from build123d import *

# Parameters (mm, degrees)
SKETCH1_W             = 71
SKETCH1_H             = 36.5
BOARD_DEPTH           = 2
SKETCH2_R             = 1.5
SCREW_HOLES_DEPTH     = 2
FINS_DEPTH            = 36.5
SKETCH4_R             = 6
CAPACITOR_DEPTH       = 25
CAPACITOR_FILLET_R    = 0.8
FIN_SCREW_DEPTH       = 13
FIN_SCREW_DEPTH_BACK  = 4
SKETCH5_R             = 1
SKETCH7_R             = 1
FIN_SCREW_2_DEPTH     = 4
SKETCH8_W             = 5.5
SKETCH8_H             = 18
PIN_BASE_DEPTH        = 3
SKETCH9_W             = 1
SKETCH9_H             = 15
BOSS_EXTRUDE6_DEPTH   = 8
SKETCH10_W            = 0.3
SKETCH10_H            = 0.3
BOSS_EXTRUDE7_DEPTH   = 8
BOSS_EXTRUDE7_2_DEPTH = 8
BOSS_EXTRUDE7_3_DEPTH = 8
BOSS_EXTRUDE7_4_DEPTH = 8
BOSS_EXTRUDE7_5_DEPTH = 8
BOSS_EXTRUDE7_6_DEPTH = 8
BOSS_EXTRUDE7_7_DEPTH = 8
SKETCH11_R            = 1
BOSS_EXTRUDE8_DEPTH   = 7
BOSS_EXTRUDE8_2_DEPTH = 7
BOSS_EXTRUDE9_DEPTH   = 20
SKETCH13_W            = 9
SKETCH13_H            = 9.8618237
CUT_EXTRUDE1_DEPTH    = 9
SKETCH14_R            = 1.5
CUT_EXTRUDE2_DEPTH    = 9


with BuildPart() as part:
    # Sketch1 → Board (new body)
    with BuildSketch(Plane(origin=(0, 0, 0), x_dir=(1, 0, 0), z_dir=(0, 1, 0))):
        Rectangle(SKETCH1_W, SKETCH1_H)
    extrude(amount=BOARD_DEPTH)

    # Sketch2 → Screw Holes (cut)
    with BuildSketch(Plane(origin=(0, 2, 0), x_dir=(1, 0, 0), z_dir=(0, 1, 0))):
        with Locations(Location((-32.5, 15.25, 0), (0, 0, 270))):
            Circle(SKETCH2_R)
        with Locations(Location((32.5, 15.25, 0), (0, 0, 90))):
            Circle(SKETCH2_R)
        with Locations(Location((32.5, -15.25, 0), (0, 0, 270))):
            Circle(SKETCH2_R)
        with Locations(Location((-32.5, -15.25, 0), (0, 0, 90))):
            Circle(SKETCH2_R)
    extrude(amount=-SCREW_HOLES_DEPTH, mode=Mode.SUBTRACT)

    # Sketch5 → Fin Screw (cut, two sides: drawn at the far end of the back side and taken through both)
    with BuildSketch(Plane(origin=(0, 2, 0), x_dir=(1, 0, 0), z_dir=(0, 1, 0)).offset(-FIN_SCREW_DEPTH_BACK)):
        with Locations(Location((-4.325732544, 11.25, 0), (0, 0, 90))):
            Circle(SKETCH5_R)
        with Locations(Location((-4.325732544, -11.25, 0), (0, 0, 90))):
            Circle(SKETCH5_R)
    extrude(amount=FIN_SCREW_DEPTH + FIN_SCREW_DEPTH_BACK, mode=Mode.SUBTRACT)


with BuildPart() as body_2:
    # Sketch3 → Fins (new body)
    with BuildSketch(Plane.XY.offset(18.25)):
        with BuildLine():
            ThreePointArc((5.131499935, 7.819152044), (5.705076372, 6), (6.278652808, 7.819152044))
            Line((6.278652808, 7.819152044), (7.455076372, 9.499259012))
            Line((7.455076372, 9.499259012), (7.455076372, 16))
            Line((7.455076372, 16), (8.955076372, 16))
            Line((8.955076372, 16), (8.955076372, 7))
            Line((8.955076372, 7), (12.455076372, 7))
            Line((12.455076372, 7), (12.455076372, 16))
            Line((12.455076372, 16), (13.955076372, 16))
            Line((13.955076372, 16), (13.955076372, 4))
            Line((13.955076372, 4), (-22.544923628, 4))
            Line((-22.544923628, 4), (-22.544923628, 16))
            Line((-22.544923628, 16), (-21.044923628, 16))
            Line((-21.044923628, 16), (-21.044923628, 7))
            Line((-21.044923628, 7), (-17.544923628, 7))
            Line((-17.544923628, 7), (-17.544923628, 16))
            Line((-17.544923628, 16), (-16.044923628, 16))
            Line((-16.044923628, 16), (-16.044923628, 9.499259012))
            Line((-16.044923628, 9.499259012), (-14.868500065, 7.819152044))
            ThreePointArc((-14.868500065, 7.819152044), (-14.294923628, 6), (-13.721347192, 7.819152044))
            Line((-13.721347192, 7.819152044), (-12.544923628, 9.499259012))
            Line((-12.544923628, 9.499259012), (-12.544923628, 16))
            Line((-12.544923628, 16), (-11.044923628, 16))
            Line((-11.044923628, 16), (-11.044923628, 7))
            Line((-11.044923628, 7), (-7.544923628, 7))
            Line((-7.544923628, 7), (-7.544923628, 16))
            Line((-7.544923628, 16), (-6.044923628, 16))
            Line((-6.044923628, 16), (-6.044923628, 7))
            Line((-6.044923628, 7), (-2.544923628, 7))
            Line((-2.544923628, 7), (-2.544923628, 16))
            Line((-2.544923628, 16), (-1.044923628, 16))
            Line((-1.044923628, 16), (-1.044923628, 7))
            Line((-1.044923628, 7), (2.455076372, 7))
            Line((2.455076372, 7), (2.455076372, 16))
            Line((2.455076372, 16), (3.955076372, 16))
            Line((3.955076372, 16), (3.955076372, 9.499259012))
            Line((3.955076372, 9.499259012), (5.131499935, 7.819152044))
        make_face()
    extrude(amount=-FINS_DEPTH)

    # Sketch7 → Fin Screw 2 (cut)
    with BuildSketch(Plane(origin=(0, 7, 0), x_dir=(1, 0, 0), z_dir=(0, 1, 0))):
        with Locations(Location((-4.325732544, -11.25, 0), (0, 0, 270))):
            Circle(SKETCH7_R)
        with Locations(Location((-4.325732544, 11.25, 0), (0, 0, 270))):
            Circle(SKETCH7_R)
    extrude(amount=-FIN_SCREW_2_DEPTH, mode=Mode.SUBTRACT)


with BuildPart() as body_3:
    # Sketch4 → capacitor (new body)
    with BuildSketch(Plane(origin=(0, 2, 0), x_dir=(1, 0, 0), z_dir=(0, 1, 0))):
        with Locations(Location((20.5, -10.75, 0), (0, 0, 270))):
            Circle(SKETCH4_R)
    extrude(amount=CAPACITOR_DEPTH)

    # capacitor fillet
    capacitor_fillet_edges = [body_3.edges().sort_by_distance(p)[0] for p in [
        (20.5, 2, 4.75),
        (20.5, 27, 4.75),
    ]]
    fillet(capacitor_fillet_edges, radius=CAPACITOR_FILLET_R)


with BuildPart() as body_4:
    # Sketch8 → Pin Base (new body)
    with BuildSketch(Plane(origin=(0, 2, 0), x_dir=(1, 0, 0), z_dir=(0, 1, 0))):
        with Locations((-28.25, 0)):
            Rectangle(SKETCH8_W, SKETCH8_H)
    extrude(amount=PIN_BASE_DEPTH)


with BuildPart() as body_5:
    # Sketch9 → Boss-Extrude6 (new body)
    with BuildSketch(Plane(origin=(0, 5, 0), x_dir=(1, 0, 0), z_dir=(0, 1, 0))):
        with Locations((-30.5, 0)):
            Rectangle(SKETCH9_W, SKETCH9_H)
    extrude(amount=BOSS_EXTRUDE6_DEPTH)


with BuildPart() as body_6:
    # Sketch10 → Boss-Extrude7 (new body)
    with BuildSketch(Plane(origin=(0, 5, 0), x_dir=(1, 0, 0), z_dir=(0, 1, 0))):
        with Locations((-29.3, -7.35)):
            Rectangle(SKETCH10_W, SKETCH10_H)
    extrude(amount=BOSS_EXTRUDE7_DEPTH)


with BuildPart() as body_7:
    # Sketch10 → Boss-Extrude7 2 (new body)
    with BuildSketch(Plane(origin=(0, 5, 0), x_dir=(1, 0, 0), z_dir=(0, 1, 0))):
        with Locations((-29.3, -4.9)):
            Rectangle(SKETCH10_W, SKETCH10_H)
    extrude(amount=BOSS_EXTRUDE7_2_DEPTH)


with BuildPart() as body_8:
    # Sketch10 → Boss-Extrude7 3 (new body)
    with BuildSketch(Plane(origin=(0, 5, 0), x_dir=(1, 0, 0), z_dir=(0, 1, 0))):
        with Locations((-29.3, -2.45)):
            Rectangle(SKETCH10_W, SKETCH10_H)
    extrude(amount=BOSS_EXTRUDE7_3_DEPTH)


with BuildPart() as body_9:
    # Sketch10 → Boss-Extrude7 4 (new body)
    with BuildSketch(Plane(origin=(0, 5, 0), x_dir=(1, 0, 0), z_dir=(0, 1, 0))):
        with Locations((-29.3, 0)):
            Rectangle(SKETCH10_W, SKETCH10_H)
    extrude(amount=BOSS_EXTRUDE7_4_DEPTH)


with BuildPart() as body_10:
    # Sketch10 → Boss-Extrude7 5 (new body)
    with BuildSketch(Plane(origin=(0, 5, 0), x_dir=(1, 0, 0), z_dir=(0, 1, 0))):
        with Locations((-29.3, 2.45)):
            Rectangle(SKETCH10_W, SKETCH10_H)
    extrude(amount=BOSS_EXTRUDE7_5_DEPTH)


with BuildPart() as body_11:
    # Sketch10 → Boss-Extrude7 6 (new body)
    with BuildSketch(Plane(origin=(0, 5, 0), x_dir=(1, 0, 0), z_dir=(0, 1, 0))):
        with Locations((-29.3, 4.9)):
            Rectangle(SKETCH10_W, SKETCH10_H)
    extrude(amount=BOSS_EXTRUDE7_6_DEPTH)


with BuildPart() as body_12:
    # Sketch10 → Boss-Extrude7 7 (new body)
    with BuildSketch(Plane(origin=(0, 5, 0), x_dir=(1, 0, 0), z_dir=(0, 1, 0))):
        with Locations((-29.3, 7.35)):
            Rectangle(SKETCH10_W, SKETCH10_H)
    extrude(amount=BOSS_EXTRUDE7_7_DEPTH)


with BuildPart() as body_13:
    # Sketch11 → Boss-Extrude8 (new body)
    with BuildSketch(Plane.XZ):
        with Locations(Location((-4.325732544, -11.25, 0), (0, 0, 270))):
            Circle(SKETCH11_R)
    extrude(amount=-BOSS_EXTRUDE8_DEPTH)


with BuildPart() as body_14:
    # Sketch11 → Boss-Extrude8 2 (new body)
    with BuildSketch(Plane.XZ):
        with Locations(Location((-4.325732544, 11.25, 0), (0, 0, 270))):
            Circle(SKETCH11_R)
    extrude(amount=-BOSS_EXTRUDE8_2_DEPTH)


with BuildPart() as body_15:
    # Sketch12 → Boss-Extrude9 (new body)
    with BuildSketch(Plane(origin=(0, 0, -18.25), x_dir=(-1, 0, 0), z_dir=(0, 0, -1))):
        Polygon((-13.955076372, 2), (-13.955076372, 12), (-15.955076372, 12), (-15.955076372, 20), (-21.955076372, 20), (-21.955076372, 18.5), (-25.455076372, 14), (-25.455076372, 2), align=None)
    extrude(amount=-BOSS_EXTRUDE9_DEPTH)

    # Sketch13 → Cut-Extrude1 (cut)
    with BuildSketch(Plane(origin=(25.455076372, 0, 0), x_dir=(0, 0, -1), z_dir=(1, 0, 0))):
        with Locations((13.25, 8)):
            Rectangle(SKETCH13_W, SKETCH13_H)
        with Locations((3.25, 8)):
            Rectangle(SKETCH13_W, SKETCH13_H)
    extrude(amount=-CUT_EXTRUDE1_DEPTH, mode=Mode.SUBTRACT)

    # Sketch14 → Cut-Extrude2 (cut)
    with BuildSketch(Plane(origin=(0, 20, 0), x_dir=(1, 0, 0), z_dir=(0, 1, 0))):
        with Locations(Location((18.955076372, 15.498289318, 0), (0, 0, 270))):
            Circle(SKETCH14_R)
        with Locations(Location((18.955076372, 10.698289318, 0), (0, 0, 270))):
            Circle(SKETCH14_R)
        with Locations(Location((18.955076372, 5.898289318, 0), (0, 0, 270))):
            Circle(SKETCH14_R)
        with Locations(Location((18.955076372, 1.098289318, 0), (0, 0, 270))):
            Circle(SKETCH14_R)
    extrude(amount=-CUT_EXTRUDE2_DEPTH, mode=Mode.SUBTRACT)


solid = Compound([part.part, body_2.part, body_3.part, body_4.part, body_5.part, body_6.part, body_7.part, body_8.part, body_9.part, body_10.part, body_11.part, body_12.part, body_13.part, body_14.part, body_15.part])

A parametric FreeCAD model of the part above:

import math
import FreeCAD as App
import Part
import Sketcher
from FreeCAD import Vector
Q = App.Units.Quantity


def edges_at(feature, points):
    """Names of the edges that pass closest to the given points."""
    edges = feature.Shape.Edges
    near = lambda p: min(range(len(edges)), key=lambda i: edges[i].distToShape(Part.Vertex(*p))[0])
    return sorted({f"Edge{near(p) + 1}" for p in points})


def add_polygon(sketch, points):
    """Adds a closed chain of lines whose ends are joined by coincident constraints."""
    first, n = sketch.GeometryCount, len(points)
    for a, b in zip(points, points[1:] + points[:1]):
        sketch.addGeometry(Part.LineSegment(App.Vector(*a, 0), App.Vector(*b, 0)), False)
    for i in range(n):
        sketch.addConstraint(Sketcher.Constraint("Coincident", first + i, 2, first + (i + 1) % n, 1))

doc = App.newDocument("Part")
body = doc.addObject("PartDesign::Body", "Body")

# Sketch on XZ plane
sketch1 = body.newObject("Sketcher::SketchObject", "Sketch")
sketch1.AttachmentSupport = (doc.getObject("XZ_Plane"), [""])
sketch1.MapMode = "FlatFace"
add_polygon(sketch1, [(-36, -18), (-36, 18), (36, 18), (36, -18)])  # lines 0-3
sketch1.addConstraint(Sketcher.Constraint("Vertical", 0))
sketch1.addConstraint(Sketcher.Constraint("Horizontal", 1))
sketch1.addConstraint(Sketcher.Constraint("Vertical", 2))
sketch1.addConstraint(Sketcher.Constraint("Horizontal", 3))
sketch1.addConstraint(Sketcher.Constraint("Symmetric", 0, 2, 2, 2, -1, 1))
sketch1.addConstraint(Sketcher.Constraint("DistanceX", 1, 1, 1, 2, 71.0))
sketch1.addConstraint(Sketcher.Constraint("DistanceY", 0, 1, 0, 2, 36.5))
pad1 = body.newObject("PartDesign::Pad", "Pad")
pad1.Profile = sketch1
pad1.Length = 2
pad1.Reversed = True

# Sketch on XZ plane
sketch2 = body.newObject("Sketcher::SketchObject", "Sketch001")
sketch2.AttachmentSupport = (doc.getObject("XZ_Plane"), [""])
sketch2.MapMode = "FlatFace"
sketch2.AttachmentOffset = App.Placement(Vector(0, 0, -2), App.Rotation())
sketch2.addGeometry(Part.Circle(Vector(-32.5, -15.2, 0), Vector(0, 0, 1), 1.5), False)
sketch2.addGeometry(Part.Circle(Vector(32.5, -15.2, 0), Vector(0, 0, 1), 1.5), False)
sketch2.addGeometry(Part.Circle(Vector(32.5, 15.2, 0), Vector(0, 0, 1), 1.5), False)
sketch2.addGeometry(Part.Circle(Vector(-32.5, 15.2, 0), Vector(0, 0, 1), 1.5), False)
sketch2.addConstraint(Sketcher.Constraint("Equal", 0, 1))
sketch2.addConstraint(Sketcher.Constraint("Equal", 1, 2))
sketch2.addConstraint(Sketcher.Constraint("Equal", 2, 3))
sketch2.addConstraint(Sketcher.Constraint("Symmetric", 0, 3, 2, 3, -1, 1))
sketch2.addConstraint(Sketcher.Constraint("Symmetric", 1, 3, 3, 3, -1, 1))
sketch2.addConstraint(Sketcher.Constraint("Symmetric", 0, 3, 1, 3, -2))
sketch2.addConstraint(Sketcher.Constraint("Diameter", 0, 3.0))
sketch2.addConstraint(Sketcher.Constraint("DistanceX", 0, 3, 1, 3, 65.0))
sketch2.addConstraint(Sketcher.Constraint("DistanceY", 1, 3, 2, 3, 30.5))
pocket1 = body.newObject("PartDesign::Pocket", "Pocket")
pocket1.Profile = sketch2
pocket1.Length = 2
pocket1.Reversed = True

# Sketch on XZ plane
sketch3 = body.newObject("Sketcher::SketchObject", "Sketch002")
sketch3.AttachmentSupport = (doc.getObject("XZ_Plane"), [""])
sketch3.MapMode = "FlatFace"
sketch3.AttachmentOffset = App.Placement(Vector(0, 0, -2), App.Rotation())
sketch3.addGeometry(Part.Circle(Vector(-4.3, -11.2, 0), Vector(0, 0, 1), 1), False)
sketch3.addGeometry(Part.Circle(Vector(-4.3, 11.2, 0), Vector(0, 0, 1), 1), False)
sketch3.addConstraint(Sketcher.Constraint("Equal", 0, 1))
sketch3.addConstraint(Sketcher.Constraint("Symmetric", 0, 3, 1, 3, -1))
sketch3.addConstraint(Sketcher.Constraint("Diameter", 0, 2.0))
sketch3.addConstraint(Sketcher.Constraint("DistanceY", 0, 3, 1, 3, 22.5))
sketch3.addConstraint(Sketcher.Constraint("DistanceX", 0, 3, -1, 1, 4.325733))
pocket2 = body.newObject("PartDesign::Pocket", "Pocket001")
pocket2.Profile = sketch3
pocket2.Type = "ThroughAll"
pocket2.Midplane = True
body2 = doc.addObject("PartDesign::Body", "Body001")

# Sketch on XY plane
sketch4 = body2.newObject("Sketcher::SketchObject", "Sketch003")
sketch4.AttachmentSupport = (doc.getObject("XY_Plane001"), [""])
sketch4.MapMode = "FlatFace"
sketch4.AttachmentOffset = App.Placement(Vector(0, 0, 18.25), App.Rotation())
sketch4.addGeometry(Part.ArcOfCircle(Part.Circle(Vector(5.7, 7, 0), Vector(0, 0, 1), 1), math.radians(125), math.radians(415)), False)
sketch4.addGeometry(Part.LineSegment(Vector(5.1, 7.8, 0), Vector(4, 9.5, 0)), False)
sketch4.addGeometry(Part.LineSegment(Vector(4, 9.5, 0), Vector(4, 16, 0)), False)
sketch4.addGeometry(Part.LineSegment(Vector(4, 16, 0), Vector(2.5, 16, 0)), False)
sketch4.addGeometry(Part.LineSegment(Vector(2.5, 16, 0), Vector(2.5, 7, 0)), False)
sketch4.addGeometry(Part.LineSegment(Vector(2.5, 7, 0), Vector(-1, 7, 0)), False)
sketch4.addGeometry(Part.LineSegment(Vector(-1, 7, 0), Vector(-1, 16, 0)), False)
sketch4.addGeometry(Part.LineSegment(Vector(-1, 16, 0), Vector(-2.5, 16, 0)), False)
sketch4.addGeometry(Part.LineSegment(Vector(-2.5, 16, 0), Vector(-2.5, 7, 0)), False)
sketch4.addGeometry(Part.LineSegment(Vector(-2.5, 7, 0), Vector(-6, 7, 0)), False)
sketch4.addGeometry(Part.LineSegment(Vector(-6, 7, 0), Vector(-6, 16, 0)), False)
sketch4.addGeometry(Part.LineSegment(Vector(-6, 16, 0), Vector(-7.5, 16, 0)), False)
sketch4.addGeometry(Part.LineSegment(Vector(-7.5, 16, 0), Vector(-7.5, 7, 0)), False)
sketch4.addGeometry(Part.LineSegment(Vector(-7.5, 7, 0), Vector(-11, 7, 0)), False)
sketch4.addGeometry(Part.LineSegment(Vector(-11, 7, 0), Vector(-11, 16, 0)), False)
sketch4.addGeometry(Part.LineSegment(Vector(-11, 16, 0), Vector(-12.5, 16, 0)), False)
sketch4.addGeometry(Part.LineSegment(Vector(-12.5, 16, 0), Vector(-12.5, 9.5, 0)), False)
sketch4.addGeometry(Part.LineSegment(Vector(-12.5, 9.5, 0), Vector(-13.7, 7.8, 0)), False)
sketch4.addGeometry(Part.ArcOfCircle(Part.Circle(Vector(-14.3, 7, 0), Vector(0, 0, 1), 1), math.radians(125), math.radians(415)), False)
sketch4.addGeometry(Part.LineSegment(Vector(-14.9, 7.8, 0), Vector(-16, 9.5, 0)), False)
sketch4.addGeometry(Part.LineSegment(Vector(-16, 9.5, 0), Vector(-16, 16, 0)), False)
sketch4.addGeometry(Part.LineSegment(Vector(-16, 16, 0), Vector(-17.5, 16, 0)), False)
sketch4.addGeometry(Part.LineSegment(Vector(-17.5, 16, 0), Vector(-17.5, 7, 0)), False)
sketch4.addGeometry(Part.LineSegment(Vector(-17.5, 7, 0), Vector(-21, 7, 0)), False)
sketch4.addGeometry(Part.LineSegment(Vector(-21, 7, 0), Vector(-21, 16, 0)), False)
sketch4.addGeometry(Part.LineSegment(Vector(-21, 16, 0), Vector(-22.5, 16, 0)), False)
sketch4.addGeometry(Part.LineSegment(Vector(-22.5, 16, 0), Vector(-22.5, 4, 0)), False)
sketch4.addGeometry(Part.LineSegment(Vector(-22.5, 4, 0), Vector(14, 4, 0)), False)
sketch4.addGeometry(Part.LineSegment(Vector(14, 4, 0), Vector(14, 16, 0)), False)
sketch4.addGeometry(Part.LineSegment(Vector(14, 16, 0), Vector(12.5, 16, 0)), False)
sketch4.addGeometry(Part.LineSegment(Vector(12.5, 16, 0), Vector(12.5, 7, 0)), False)
sketch4.addGeometry(Part.LineSegment(Vector(12.5, 7, 0), Vector(9, 7, 0)), False)
sketch4.addGeometry(Part.LineSegment(Vector(9, 7, 0), Vector(9, 16, 0)), False)
sketch4.addGeometry(Part.LineSegment(Vector(9, 16, 0), Vector(7.5, 16, 0)), False)
sketch4.addGeometry(Part.LineSegment(Vector(7.5, 16, 0), Vector(7.5, 9.5, 0)), False)
sketch4.addGeometry(Part.LineSegment(Vector(7.5, 9.5, 0), Vector(6.3, 7.8, 0)), False)
sketch4.addConstraint(Sketcher.Constraint("Coincident", 0, 1, 1, 1))
sketch4.addConstraint(Sketcher.Constraint("Coincident", 1, 2, 2, 1))
sketch4.addConstraint(Sketcher.Constraint("Coincident", 2, 2, 3, 1))
sketch4.addConstraint(Sketcher.Constraint("Coincident", 3, 2, 4, 1))
sketch4.addConstraint(Sketcher.Constraint("Coincident", 4, 2, 5, 1))
sketch4.addConstraint(Sketcher.Constraint("Coincident", 5, 2, 6, 1))
sketch4.addConstraint(Sketcher.Constraint("Coincident", 6, 2, 7, 1))
sketch4.addConstraint(Sketcher.Constraint("Coincident", 7, 2, 8, 1))
sketch4.addConstraint(Sketcher.Constraint("Coincident", 8, 2, 9, 1))
sketch4.addConstraint(Sketcher.Constraint("Coincident", 9, 2, 10, 1))
sketch4.addConstraint(Sketcher.Constraint("Coincident", 10, 2, 11, 1))
sketch4.addConstraint(Sketcher.Constraint("Coincident", 11, 2, 12, 1))
sketch4.addConstraint(Sketcher.Constraint("Coincident", 12, 2, 13, 1))
sketch4.addConstraint(Sketcher.Constraint("Coincident", 13, 2, 14, 1))
sketch4.addConstraint(Sketcher.Constraint("Coincident", 14, 2, 15, 1))
sketch4.addConstraint(Sketcher.Constraint("Coincident", 15, 2, 16, 1))
sketch4.addConstraint(Sketcher.Constraint("Coincident", 16, 2, 17, 1))
sketch4.addConstraint(Sketcher.Constraint("Coincident", 17, 2, 18, 2))
sketch4.addConstraint(Sketcher.Constraint("Coincident", 18, 1, 19, 1))
sketch4.addConstraint(Sketcher.Constraint("Coincident", 19, 2, 20, 1))
sketch4.addConstraint(Sketcher.Constraint("Coincident", 20, 2, 21, 1))
sketch4.addConstraint(Sketcher.Constraint("Coincident", 21, 2, 22, 1))
sketch4.addConstraint(Sketcher.Constraint("Coincident", 22, 2, 23, 1))
sketch4.addConstraint(Sketcher.Constraint("Coincident", 23, 2, 24, 1))
sketch4.addConstraint(Sketcher.Constraint("Coincident", 24, 2, 25, 1))
sketch4.addConstraint(Sketcher.Constraint("Coincident", 25, 2, 26, 1))
sketch4.addConstraint(Sketcher.Constraint("Coincident", 26, 2, 27, 1))
sketch4.addConstraint(Sketcher.Constraint("Coincident", 27, 2, 28, 1))
sketch4.addConstraint(Sketcher.Constraint("Coincident", 28, 2, 29, 1))
sketch4.addConstraint(Sketcher.Constraint("Coincident", 29, 2, 30, 1))
sketch4.addConstraint(Sketcher.Constraint("Coincident", 30, 2, 31, 1))
sketch4.addConstraint(Sketcher.Constraint("Coincident", 31, 2, 32, 1))
sketch4.addConstraint(Sketcher.Constraint("Coincident", 32, 2, 33, 1))
sketch4.addConstraint(Sketcher.Constraint("Coincident", 33, 2, 34, 1))
sketch4.addConstraint(Sketcher.Constraint("Coincident", 34, 2, 35, 1))
sketch4.addConstraint(Sketcher.Constraint("Coincident", 35, 2, 0, 2))
sketch4.addConstraint(Sketcher.Constraint("Vertical", 2))
sketch4.addConstraint(Sketcher.Constraint("Horizontal", 3))
sketch4.addConstraint(Sketcher.Constraint("Vertical", 4))
sketch4.addConstraint(Sketcher.Constraint("Horizontal", 5))
sketch4.addConstraint(Sketcher.Constraint("Vertical", 6))
sketch4.addConstraint(Sketcher.Constraint("Horizontal", 7))
sketch4.addConstraint(Sketcher.Constraint("Vertical", 8))
sketch4.addConstraint(Sketcher.Constraint("Horizontal", 9))
sketch4.addConstraint(Sketcher.Constraint("Vertical", 10))
sketch4.addConstraint(Sketcher.Constraint("Horizontal", 11))
sketch4.addConstraint(Sketcher.Constraint("Vertical", 12))
sketch4.addConstraint(Sketcher.Constraint("Horizontal", 13))
sketch4.addConstraint(Sketcher.Constraint("Vertical", 14))
sketch4.addConstraint(Sketcher.Constraint("Horizontal", 15))
sketch4.addConstraint(Sketcher.Constraint("Vertical", 16))
sketch4.addConstraint(Sketcher.Constraint("Vertical", 20))
sketch4.addConstraint(Sketcher.Constraint("Horizontal", 21))
sketch4.addConstraint(Sketcher.Constraint("Vertical", 22))
sketch4.addConstraint(Sketcher.Constraint("Horizontal", 23))
sketch4.addConstraint(Sketcher.Constraint("Vertical", 24))
sketch4.addConstraint(Sketcher.Constraint("Horizontal", 25))
sketch4.addConstraint(Sketcher.Constraint("Vertical", 26))
sketch4.addConstraint(Sketcher.Constraint("Horizontal", 27))
sketch4.addConstraint(Sketcher.Constraint("Vertical", 28))
sketch4.addConstraint(Sketcher.Constraint("Horizontal", 29))
sketch4.addConstraint(Sketcher.Constraint("Vertical", 30))
sketch4.addConstraint(Sketcher.Constraint("Horizontal", 31))
sketch4.addConstraint(Sketcher.Constraint("Vertical", 32))
sketch4.addConstraint(Sketcher.Constraint("Horizontal", 33))
sketch4.addConstraint(Sketcher.Constraint("Vertical", 34))
sketch4.addConstraint(Sketcher.Constraint("Equal", 0, 18))
sketch4.addConstraint(Sketcher.Constraint("Parallel", 1, 19))
sketch4.addConstraint(Sketcher.Constraint("Parallel", 17, 35))
sketch4.addConstraint(Sketcher.Constraint("Horizontal", 0, 3, 18, 3))
sketch4.addConstraint(Sketcher.Constraint("Horizontal", 18, 3, 4, 2))
sketch4.addConstraint(Sketcher.Constraint("Horizontal", 3, 2, 6, 2))
sketch4.addConstraint(Sketcher.Constraint("Horizontal", 5, 2, 8, 2))
sketch4.addConstraint(Sketcher.Constraint("Horizontal", 7, 2, 10, 2))
sketch4.addConstraint(Sketcher.Constraint("Horizontal", 9, 2, 12, 2))
sketch4.addConstraint(Sketcher.Constraint("Horizontal", 11, 2, 14, 2))
sketch4.addConstraint(Sketcher.Constraint("Horizontal", 1, 2, 16, 2))
sketch4.addConstraint(Sketcher.Constraint("Horizontal", 0, 1, 17, 2))
sketch4.addConstraint(Sketcher.Constraint("Horizontal", 17, 2, 18, 1))
sketch4.addConstraint(Sketcher.Constraint("Horizontal", 16, 2, 19, 2))
sketch4.addConstraint(Sketcher.Constraint("Horizontal", 15, 2, 20, 2))
sketch4.addConstraint(Sketcher.Constraint("Horizontal", 13, 2, 22, 2))
sketch4.addConstraint(Sketcher.Constraint("Horizontal", 21, 2, 24, 2))
sketch4.addConstraint(Sketcher.Constraint("Horizontal", 25, 2, 28, 2))
sketch4.addConstraint(Sketcher.Constraint("Horizontal", 23, 2, 30, 2))
sketch4.addConstraint(Sketcher.Constraint("Horizontal", 29, 2, 32, 2))
sketch4.addConstraint(Sketcher.Constraint("Horizontal", 19, 2, 34, 2))
sketch4.addConstraint(Sketcher.Constraint("Horizontal", 18, 1, 35, 2))
sketch4.addConstraint(Sketcher.Constraint("Equal", 3, 7))
sketch4.addConstraint(Sketcher.Constraint("Equal", 5, 9))
sketch4.addConstraint(Sketcher.Constraint("Equal", 7, 11))
sketch4.addConstraint(Sketcher.Constraint("Equal", 9, 13))
sketch4.addConstraint(Sketcher.Constraint("Equal", 11, 15))
sketch4.addConstraint(Sketcher.Constraint("Equal", 15, 21))
sketch4.addConstraint(Sketcher.Constraint("Equal", 13, 23))
sketch4.addConstraint(Sketcher.Constraint("Equal", 21, 25))
sketch4.addConstraint(Sketcher.Constraint("Equal", 25, 29))
sketch4.addConstraint(Sketcher.Constraint("Equal", 23, 31))
sketch4.addConstraint(Sketcher.Constraint("Equal", 29, 33))
sketch4.addConstraint(Sketcher.Constraint("Equal", 1, 17))
sketch4.addConstraint(Sketcher.Constraint("Radius", 0, 1.0))
sketch4.addConstraint(Sketcher.Constraint("DistanceY", 4, 2, 4, 1, 9.0))
sketch4.addConstraint(Sketcher.Constraint("DistanceY", 26, 2, 26, 1, 12.0))
sketch4.addConstraint(Sketcher.Constraint("Angle", 1, Q("125 deg")))
sketch4.addConstraint(Sketcher.Constraint("DistanceX", 3, 2, 3, 1, 1.5))
sketch4.addConstraint(Sketcher.Constraint("DistanceX", 5, 2, 5, 1, 3.5))
sketch4.addConstraint(Sketcher.Constraint("DistanceX", 27, 1, 27, 2, 36.5))
sketch4.addConstraint(Sketcher.Constraint("DistanceY", -1, 1, 0, 3, 7.0))
sketch4.addConstraint(Sketcher.Constraint("DistanceY", 2, 1, 2, 2, 6.500741))
sketch4.addConstraint(Sketcher.Constraint("DistanceX", -1, 1, 0, 1, 5.1315))
pad2 = body2.newObject("PartDesign::Pad", "Pad001")
pad2.Profile = sketch4
pad2.Length = 36.5
pad2.Reversed = True

# Sketch on XZ plane
sketch5 = body2.newObject("Sketcher::SketchObject", "Sketch004")
sketch5.AttachmentSupport = (doc.getObject("XZ_Plane001"), [""])
sketch5.MapMode = "FlatFace"
sketch5.AttachmentOffset = App.Placement(Vector(0, 0, -7), App.Rotation())
sketch5.addGeometry(Part.Circle(Vector(-4.3, 11.2, 0), Vector(0, 0, 1), 1), False)
sketch5.addGeometry(Part.Circle(Vector(-4.3, -11.2, 0), Vector(0, 0, 1), 1), False)
sketch5.addConstraint(Sketcher.Constraint("Equal", 0, 1))
sketch5.addConstraint(Sketcher.Constraint("Symmetric", 0, 3, 1, 3, -1))
sketch5.addConstraint(Sketcher.Constraint("Diameter", 0, 2.0))
sketch5.addConstraint(Sketcher.Constraint("DistanceY", 1, 3, 0, 3, 22.5))
sketch5.addConstraint(Sketcher.Constraint("DistanceX", 0, 3, -1, 1, 4.325733))
pocket3 = body2.newObject("PartDesign::Pocket", "Pocket002")
pocket3.Profile = sketch5
pocket3.Length = 4
pocket3.Reversed = True
body3 = doc.addObject("PartDesign::Body", "Body002")

# Sketch on XZ plane
sketch6 = body3.newObject("Sketcher::SketchObject", "Sketch005")
sketch6.AttachmentSupport = (doc.getObject("XZ_Plane002"), [""])
sketch6.MapMode = "FlatFace"
sketch6.AttachmentOffset = App.Placement(Vector(0, 0, -2), App.Rotation())
sketch6.addGeometry(Part.Circle(Vector(20, 11, 0), Vector(0, 0, 1), 6), False)
sketch6.addConstraint(Sketcher.Constraint("Diameter", 0, 12.0))
sketch6.addConstraint(Sketcher.Constraint("DistanceX", -1, 1, 0, 3, 20.5))
sketch6.addConstraint(Sketcher.Constraint("DistanceY", -1, 1, 0, 3, 10.75))
pad3 = body3.newObject("PartDesign::Pad", "Pad002")
pad3.Profile = sketch6
pad3.Length = 25
pad3.Reversed = True
doc.recompute()

fillet = body3.newObject("PartDesign::Fillet", "Fillet")
fillet.Base = (pad3, edges_at(pad3, [(20.5, 2, 4.75), (20.5, 27, 4.75)]))
fillet.Radius = 0.8
body4 = doc.addObject("PartDesign::Body", "Body003")

# Sketch on XZ plane
sketch7 = body4.newObject("Sketcher::SketchObject", "Sketch006")
sketch7.AttachmentSupport = (doc.getObject("XZ_Plane003"), [""])
sketch7.MapMode = "FlatFace"
sketch7.AttachmentOffset = App.Placement(Vector(0, 0, -2), App.Rotation())
add_polygon(sketch7, [(-31, -9), (-31, 9), (-26, 9), (-26, -9)])  # lines 0-3
sketch7.addConstraint(Sketcher.Constraint("Vertical", 0))
sketch7.addConstraint(Sketcher.Constraint("Horizontal", 1))
sketch7.addConstraint(Sketcher.Constraint("Vertical", 2))
sketch7.addConstraint(Sketcher.Constraint("Horizontal", 3))
sketch7.addConstraint(Sketcher.Constraint("DistanceY", 0, 1, 0, 2, 18.0))
sketch7.addConstraint(Sketcher.Constraint("DistanceX", 1, 1, 1, 2, 5.5))
sketch7.addConstraint(Sketcher.Constraint("DistanceX", 0, 2, -1, 1, 31.0))
sketch7.addConstraint(Sketcher.Constraint("DistanceY", -1, 1, 0, 2, 9.0))
pad4 = body4.newObject("PartDesign::Pad", "Pad003")
pad4.Profile = sketch7
pad4.Length = 3
pad4.Reversed = True
body5 = doc.addObject("PartDesign::Body", "Body004")

# Sketch on XZ plane
sketch8 = body5.newObject("Sketcher::SketchObject", "Sketch007")
sketch8.AttachmentSupport = (doc.getObject("XZ_Plane004"), [""])
sketch8.MapMode = "FlatFace"
sketch8.AttachmentOffset = App.Placement(Vector(0, 0, -5), App.Rotation())
add_polygon(sketch8, [(-31, -7.5), (-31, 7.5), (-30, 7.5), (-30, -7.5)])  # lines 0-3
sketch8.addConstraint(Sketcher.Constraint("Vertical", 0))
sketch8.addConstraint(Sketcher.Constraint("Horizontal", 1))
sketch8.addConstraint(Sketcher.Constraint("Vertical", 2))
sketch8.addConstraint(Sketcher.Constraint("Horizontal", 3))
sketch8.addConstraint(Sketcher.Constraint("DistanceX", 1, 1, 1, 2, 1.0))
sketch8.addConstraint(Sketcher.Constraint("DistanceY", 0, 1, 0, 2, 15.0))
sketch8.addConstraint(Sketcher.Constraint("DistanceX", 0, 2, -1, 1, 31.0))
sketch8.addConstraint(Sketcher.Constraint("DistanceY", -1, 1, 0, 2, 7.5))
pad5 = body5.newObject("PartDesign::Pad", "Pad004")
pad5.Profile = sketch8
pad5.Length = 8
pad5.Reversed = True
body6 = doc.addObject("PartDesign::Body", "Body005")

# Sketch on XZ plane
sketch9 = body6.newObject("Sketcher::SketchObject", "Sketch008")
sketch9.AttachmentSupport = (doc.getObject("XZ_Plane005"), [""])
sketch9.MapMode = "FlatFace"
sketch9.AttachmentOffset = App.Placement(Vector(0, 0, -5), App.Rotation())
add_polygon(sketch9, [(-29.45, 7.2), (-29.45, 7.5), (-29.15, 7.5), (-29.15, 7.2)])  # lines 0-3
sketch9.addConstraint(Sketcher.Constraint("Vertical", 0))
sketch9.addConstraint(Sketcher.Constraint("Horizontal", 1))
sketch9.addConstraint(Sketcher.Constraint("Vertical", 2))
sketch9.addConstraint(Sketcher.Constraint("Horizontal", 3))
sketch9.addConstraint(Sketcher.Constraint("Equal", 3, 0))
sketch9.addConstraint(Sketcher.Constraint("DistanceX", 1, 1, 1, 2, 0.3))
sketch9.addConstraint(Sketcher.Constraint("DistanceY", -1, 1, 0, 2, 7.5))
sketch9.addConstraint(Sketcher.Constraint("DistanceX", 0, 2, -1, 1, 29.45))
pad6 = body6.newObject("PartDesign::Pad", "Pad005")
pad6.Profile = sketch9
pad6.Length = 8
pad6.Reversed = True
body7 = doc.addObject("PartDesign::Body", "Body006")

# Sketch on XZ plane
sketch10 = body7.newObject("Sketcher::SketchObject", "Sketch009")
sketch10.AttachmentSupport = (doc.getObject("XZ_Plane006"), [""])
sketch10.MapMode = "FlatFace"
sketch10.AttachmentOffset = App.Placement(Vector(0, 0, -5), App.Rotation())
add_polygon(sketch10, [(-29.45, 4.75), (-29.45, 5.05), (-29.15, 5.05), (-29.15, 4.75)])  # lines 0-3
sketch10.addConstraint(Sketcher.Constraint("Vertical", 0))
sketch10.addConstraint(Sketcher.Constraint("Horizontal", 1))
sketch10.addConstraint(Sketcher.Constraint("Vertical", 2))
sketch10.addConstraint(Sketcher.Constraint("Horizontal", 3))
sketch10.addConstraint(Sketcher.Constraint("Equal", 3, 0))
sketch10.addConstraint(Sketcher.Constraint("DistanceX", 1, 1, 1, 2, 0.3))
sketch10.addConstraint(Sketcher.Constraint("DistanceX", 0, 2, -1, 1, 29.45))
sketch10.addConstraint(Sketcher.Constraint("DistanceY", -1, 1, 0, 2, 5.05))
pad7 = body7.newObject("PartDesign::Pad", "Pad006")
pad7.Profile = sketch10
pad7.Length = 8
pad7.Reversed = True
body8 = doc.addObject("PartDesign::Body", "Body007")

# Sketch on XZ plane
sketch11 = body8.newObject("Sketcher::SketchObject", "Sketch010")
sketch11.AttachmentSupport = (doc.getObject("XZ_Plane007"), [""])
sketch11.MapMode = "FlatFace"
sketch11.AttachmentOffset = App.Placement(Vector(0, 0, -5), App.Rotation())
add_polygon(sketch11, [(-29.45, 2.3), (-29.45, 2.6), (-29.15, 2.6), (-29.15, 2.3)])  # lines 0-3
sketch11.addConstraint(Sketcher.Constraint("Vertical", 0))
sketch11.addConstraint(Sketcher.Constraint("Horizontal", 1))
sketch11.addConstraint(Sketcher.Constraint("Vertical", 2))
sketch11.addConstraint(Sketcher.Constraint("Horizontal", 3))
sketch11.addConstraint(Sketcher.Constraint("Equal", 3, 0))
sketch11.addConstraint(Sketcher.Constraint("DistanceX", 1, 1, 1, 2, 0.3))
sketch11.addConstraint(Sketcher.Constraint("DistanceY", -1, 1, 0, 2, 2.6))
sketch11.addConstraint(Sketcher.Constraint("DistanceX", 0, 2, -1, 1, 29.45))
pad8 = body8.newObject("PartDesign::Pad", "Pad007")
pad8.Profile = sketch11
pad8.Length = 8
pad8.Reversed = True
body9 = doc.addObject("PartDesign::Body", "Body008")

# Sketch on XZ plane
sketch12 = body9.newObject("Sketcher::SketchObject", "Sketch011")
sketch12.AttachmentSupport = (doc.getObject("XZ_Plane008"), [""])
sketch12.MapMode = "FlatFace"
sketch12.AttachmentOffset = App.Placement(Vector(0, 0, -5), App.Rotation())
add_polygon(sketch12, [(-29.45, -0.15), (-29.45, 0.15), (-29.15, 0.15), (-29.15, -0.15)])  # lines 0-3
sketch12.addConstraint(Sketcher.Constraint("Vertical", 0))
sketch12.addConstraint(Sketcher.Constraint("Horizontal", 1))
sketch12.addConstraint(Sketcher.Constraint("Vertical", 2))
sketch12.addConstraint(Sketcher.Constraint("Horizontal", 3))
sketch12.addConstraint(Sketcher.Constraint("Equal", 3, 0))
sketch12.addConstraint(Sketcher.Constraint("DistanceX", 1, 1, 1, 2, 0.3))
sketch12.addConstraint(Sketcher.Constraint("DistanceX", 0, 2, -1, 1, 29.45))
sketch12.addConstraint(Sketcher.Constraint("DistanceY", -1, 1, 0, 2, 0.15))
pad9 = body9.newObject("PartDesign::Pad", "Pad008")
pad9.Profile = sketch12
pad9.Length = 8
pad9.Reversed = True
body10 = doc.addObject("PartDesign::Body", "Body009")

# Sketch on XZ plane
sketch13 = body10.newObject("Sketcher::SketchObject", "Sketch012")
sketch13.AttachmentSupport = (doc.getObject("XZ_Plane009"), [""])
sketch13.MapMode = "FlatFace"
sketch13.AttachmentOffset = App.Placement(Vector(0, 0, -5), App.Rotation())
add_polygon(sketch13, [(-29.45, -2.6), (-29.45, -2.3), (-29.15, -2.3), (-29.15, -2.6)])  # lines 0-3
sketch13.addConstraint(Sketcher.Constraint("Vertical", 0))
sketch13.addConstraint(Sketcher.Constraint("Horizontal", 1))
sketch13.addConstraint(Sketcher.Constraint("Vertical", 2))
sketch13.addConstraint(Sketcher.Constraint("Horizontal", 3))
sketch13.addConstraint(Sketcher.Constraint("Equal", 3, 0))
sketch13.addConstraint(Sketcher.Constraint("DistanceX", 1, 1, 1, 2, 0.3))
sketch13.addConstraint(Sketcher.Constraint("DistanceY", 0, 2, -1, 1, 2.3))
sketch13.addConstraint(Sketcher.Constraint("DistanceX", 0, 2, -1, 1, 29.45))
pad10 = body10.newObject("PartDesign::Pad", "Pad009")
pad10.Profile = sketch13
pad10.Length = 8
pad10.Reversed = True
body11 = doc.addObject("PartDesign::Body", "Body010")

# Sketch on XZ plane
sketch14 = body11.newObject("Sketcher::SketchObject", "Sketch013")
sketch14.AttachmentSupport = (doc.getObject("XZ_Plane010"), [""])
sketch14.MapMode = "FlatFace"
sketch14.AttachmentOffset = App.Placement(Vector(0, 0, -5), App.Rotation())
add_polygon(sketch14, [(-29.45, -5.05), (-29.45, -4.75), (-29.15, -4.75), (-29.15, -5.05)])  # lines 0-3
sketch14.addConstraint(Sketcher.Constraint("Vertical", 0))
sketch14.addConstraint(Sketcher.Constraint("Horizontal", 1))
sketch14.addConstraint(Sketcher.Constraint("Vertical", 2))
sketch14.addConstraint(Sketcher.Constraint("Horizontal", 3))
sketch14.addConstraint(Sketcher.Constraint("Equal", 3, 0))
sketch14.addConstraint(Sketcher.Constraint("DistanceX", 1, 1, 1, 2, 0.3))
sketch14.addConstraint(Sketcher.Constraint("DistanceX", 0, 2, -1, 1, 29.45))
sketch14.addConstraint(Sketcher.Constraint("DistanceY", 0, 2, -1, 1, 4.75))
pad11 = body11.newObject("PartDesign::Pad", "Pad010")
pad11.Profile = sketch14
pad11.Length = 8
pad11.Reversed = True
body12 = doc.addObject("PartDesign::Body", "Body011")

# Sketch on XZ plane
sketch15 = body12.newObject("Sketcher::SketchObject", "Sketch014")
sketch15.AttachmentSupport = (doc.getObject("XZ_Plane011"), [""])
sketch15.MapMode = "FlatFace"
sketch15.AttachmentOffset = App.Placement(Vector(0, 0, -5), App.Rotation())
add_polygon(sketch15, [(-29.45, -7.5), (-29.45, -7.2), (-29.15, -7.2), (-29.15, -7.5)])  # lines 0-3
sketch15.addConstraint(Sketcher.Constraint("Vertical", 0))
sketch15.addConstraint(Sketcher.Constraint("Horizontal", 1))
sketch15.addConstraint(Sketcher.Constraint("Vertical", 2))
sketch15.addConstraint(Sketcher.Constraint("Horizontal", 3))
sketch15.addConstraint(Sketcher.Constraint("Equal", 3, 0))
sketch15.addConstraint(Sketcher.Constraint("DistanceX", 1, 1, 1, 2, 0.3))
sketch15.addConstraint(Sketcher.Constraint("DistanceY", 0, 2, -1, 1, 7.2))
sketch15.addConstraint(Sketcher.Constraint("DistanceX", 0, 2, -1, 1, 29.45))
pad12 = body12.newObject("PartDesign::Pad", "Pad011")
pad12.Profile = sketch15
pad12.Length = 8
pad12.Reversed = True
body13 = doc.addObject("PartDesign::Body", "Body012")

# Sketch on XZ plane
sketch16 = body13.newObject("Sketcher::SketchObject", "Sketch015")
sketch16.AttachmentSupport = (doc.getObject("XZ_Plane012"), [""])
sketch16.MapMode = "FlatFace"
sketch16.addGeometry(Part.Circle(Vector(-4.3, -11.2, 0), Vector(0, 0, 1), 1), False)
sketch16.addConstraint(Sketcher.Constraint("Diameter", 0, 2.0))
sketch16.addConstraint(Sketcher.Constraint("DistanceY", 0, 3, -1, 1, 11.25))
sketch16.addConstraint(Sketcher.Constraint("DistanceX", 0, 3, -1, 1, 4.325733))
pad13 = body13.newObject("PartDesign::Pad", "Pad012")
pad13.Profile = sketch16
pad13.Length = 7
pad13.Reversed = True
body14 = doc.addObject("PartDesign::Body", "Body013")

# Sketch on XZ plane
sketch17 = body14.newObject("Sketcher::SketchObject", "Sketch016")
sketch17.AttachmentSupport = (doc.getObject("XZ_Plane013"), [""])
sketch17.MapMode = "FlatFace"
sketch17.addGeometry(Part.Circle(Vector(-4.3, 11.2, 0), Vector(0, 0, 1), 1), False)
sketch17.addConstraint(Sketcher.Constraint("Diameter", 0, 2.0))
sketch17.addConstraint(Sketcher.Constraint("DistanceY", -1, 1, 0, 3, 11.25))
sketch17.addConstraint(Sketcher.Constraint("DistanceX", 0, 3, -1, 1, 4.325733))
pad14 = body14.newObject("PartDesign::Pad", "Pad013")
pad14.Profile = sketch17
pad14.Length = 7
pad14.Reversed = True
body15 = doc.addObject("PartDesign::Body", "Body014")

# Sketch on XY plane
sketch18 = body15.newObject("Sketcher::SketchObject", "Sketch017")
sketch18.AttachmentSupport = (doc.getObject("XY_Plane014"), [""])
sketch18.MapMode = "FlatFace"
sketch18.AttachmentOffset = App.Placement(Vector(0, 0, -18.25), App.Rotation())
add_polygon(sketch18, [(14, 2), (14, 12), (16, 12), (16, 20), (22, 20), (22, 18.5), (25.5, 14), (25.5, 2)])  # lines 0-7
sketch18.addConstraint(Sketcher.Constraint("Vertical", 0))
sketch18.addConstraint(Sketcher.Constraint("Horizontal", 1))
sketch18.addConstraint(Sketcher.Constraint("Vertical", 2))
sketch18.addConstraint(Sketcher.Constraint("Horizontal", 3))
sketch18.addConstraint(Sketcher.Constraint("Vertical", 4))
sketch18.addConstraint(Sketcher.Constraint("Vertical", 6))
sketch18.addConstraint(Sketcher.Constraint("Horizontal", 7))
sketch18.addConstraint(Sketcher.Constraint("DistanceX", 1, 1, 1, 2, 2.0))
sketch18.addConstraint(Sketcher.Constraint("DistanceX", 3, 1, 3, 2, 6.0))
sketch18.addConstraint(Sketcher.Constraint("DistanceY", 0, 1, 0, 2, 10.0))
sketch18.addConstraint(Sketcher.Constraint("DistanceY", 2, 1, 2, 2, 8.0))
sketch18.addConstraint(Sketcher.Constraint("DistanceY", 6, 2, 6, 1, 12.0))
sketch18.addConstraint(Sketcher.Constraint("DistanceX", 7, 2, 7, 1, 11.5))
sketch18.addConstraint(Sketcher.Constraint("DistanceY", 4, 2, 4, 1, 1.5))
sketch18.addConstraint(Sketcher.Constraint("DistanceY", -1, 1, 0, 2, 12.0))
sketch18.addConstraint(Sketcher.Constraint("DistanceX", -1, 1, 0, 2, 13.955076))
pad15 = body15.newObject("PartDesign::Pad", "Pad014")
pad15.Profile = sketch18
pad15.Length = 20

# Sketch on YZ plane
sketch19 = body15.newObject("Sketcher::SketchObject", "Sketch018")
sketch19.AttachmentSupport = (doc.getObject("YZ_Plane014"), [""])
sketch19.MapMode = "FlatFace"
sketch19.AttachmentOffset = App.Placement(Vector(0, 0, 25.455076), App.Rotation())
add_polygon(sketch19, [(13, -9), (3, -9), (3, -18), (13, -18)])  # lines 0-3
add_polygon(sketch19, [(13, 1), (3, 1), (3, -8), (13, -8)])  # lines 4-7
sketch19.addConstraint(Sketcher.Constraint("Horizontal", 0))
sketch19.addConstraint(Sketcher.Constraint("Vertical", 1))
sketch19.addConstraint(Sketcher.Constraint("Horizontal", 2))
sketch19.addConstraint(Sketcher.Constraint("Vertical", 3))
sketch19.addConstraint(Sketcher.Constraint("Horizontal", 4))
sketch19.addConstraint(Sketcher.Constraint("Vertical", 5))
sketch19.addConstraint(Sketcher.Constraint("Horizontal", 6))
sketch19.addConstraint(Sketcher.Constraint("Vertical", 7))
sketch19.addConstraint(Sketcher.Constraint("Vertical", 1, 2, 4, 2))
sketch19.addConstraint(Sketcher.Constraint("Vertical", 3, 2, 6, 2))
sketch19.addConstraint(Sketcher.Constraint("Equal", 3, 5))
sketch19.addConstraint(Sketcher.Constraint("DistanceY", 1, 2, 1, 1, 9.0))
sketch19.addConstraint(Sketcher.Constraint("DistanceY", 0, 2, 4, 2, 10.0))
sketch19.addConstraint(Sketcher.Constraint("DistanceY", 0, 2, -1, 1, 8.75))
sketch19.addConstraint(Sketcher.Constraint("DistanceX", 0, 2, 0, 1, 9.861824))
sketch19.addConstraint(Sketcher.Constraint("DistanceX", -1, 1, 0, 2, 3.069088))
pocket4 = body15.newObject("PartDesign::Pocket", "Pocket003")
pocket4.Profile = sketch19
pocket4.Length = 9

# Sketch on XZ plane
sketch20 = body15.newObject("Sketcher::SketchObject", "Sketch019")
sketch20.AttachmentSupport = (doc.getObject("XZ_Plane014"), [""])
sketch20.MapMode = "FlatFace"
sketch20.AttachmentOffset = App.Placement(Vector(0, 0, -20), App.Rotation())
sketch20.addGeometry(Part.Circle(Vector(19, -15.5, 0), Vector(0, 0, 1), 1.5), False)
sketch20.addGeometry(Part.Circle(Vector(19, -10.7, 0), Vector(0, 0, 1), 1.5), False)
sketch20.addGeometry(Part.Circle(Vector(19, -5.9, 0), Vector(0, 0, 1), 1.5), False)
sketch20.addGeometry(Part.Circle(Vector(19, -1.1, 0), Vector(0, 0, 1), 1.5), False)
sketch20.addConstraint(Sketcher.Constraint("Equal", 0, 1))
sketch20.addConstraint(Sketcher.Constraint("Equal", 1, 2))
sketch20.addConstraint(Sketcher.Constraint("Equal", 2, 3))
sketch20.addConstraint(Sketcher.Constraint("Vertical", 0, 3, 1, 3))
sketch20.addConstraint(Sketcher.Constraint("Vertical", 1, 3, 2, 3))
sketch20.addConstraint(Sketcher.Constraint("Vertical", 2, 3, 3, 3))
sketch20.addConstraint(Sketcher.Constraint("Diameter", 0, 3.0))
sketch20.addConstraint(Sketcher.Constraint("DistanceY", 0, 3, 1, 3, 4.8))
sketch20.addConstraint(Sketcher.Constraint("DistanceY", 1, 3, 2, 3, 4.8))
sketch20.addConstraint(Sketcher.Constraint("DistanceY", 2, 3, 3, 3, 4.8))
sketch20.addConstraint(Sketcher.Constraint("DistanceY", 0, 3, -1, 1, 15.498289))
sketch20.addConstraint(Sketcher.Constraint("DistanceX", -1, 1, 0, 3, 18.955076))
pocket5 = body15.newObject("PartDesign::Pocket", "Pocket004")
pocket5.Profile = sketch20
pocket5.Length = 9
pocket5.Reversed = True

doc.recompute()
